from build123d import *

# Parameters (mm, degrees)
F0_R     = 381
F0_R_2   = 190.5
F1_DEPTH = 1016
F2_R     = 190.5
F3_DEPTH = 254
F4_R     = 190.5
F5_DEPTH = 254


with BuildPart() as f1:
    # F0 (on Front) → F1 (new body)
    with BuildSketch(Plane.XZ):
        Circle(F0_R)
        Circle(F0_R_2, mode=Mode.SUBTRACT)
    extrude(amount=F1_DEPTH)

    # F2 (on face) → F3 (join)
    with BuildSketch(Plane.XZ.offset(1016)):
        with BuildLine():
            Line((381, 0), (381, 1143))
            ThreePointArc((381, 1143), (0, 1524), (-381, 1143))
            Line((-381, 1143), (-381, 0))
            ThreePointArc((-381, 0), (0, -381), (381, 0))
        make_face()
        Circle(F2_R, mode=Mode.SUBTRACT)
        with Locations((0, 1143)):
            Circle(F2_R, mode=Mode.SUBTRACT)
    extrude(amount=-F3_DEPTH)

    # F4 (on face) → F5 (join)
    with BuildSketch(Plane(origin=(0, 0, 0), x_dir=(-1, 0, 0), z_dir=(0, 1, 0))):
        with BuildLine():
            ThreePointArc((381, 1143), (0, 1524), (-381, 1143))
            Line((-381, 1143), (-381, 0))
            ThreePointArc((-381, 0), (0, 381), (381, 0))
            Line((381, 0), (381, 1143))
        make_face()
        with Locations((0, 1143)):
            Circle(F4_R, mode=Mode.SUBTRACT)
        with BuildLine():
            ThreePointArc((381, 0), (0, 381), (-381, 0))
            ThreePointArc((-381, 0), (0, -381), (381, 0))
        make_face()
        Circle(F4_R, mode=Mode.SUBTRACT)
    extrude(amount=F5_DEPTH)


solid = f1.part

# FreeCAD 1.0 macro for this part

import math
import FreeCAD as App
import Part
import Sketcher
from FreeCAD import Vector
Q = App.Units.Quantity

doc = App.newDocument("Part")
body = doc.addObject("PartDesign::Body", "Body")

# Sketch on XZ plane
sketch1 = doc.addObject("Sketcher::SketchObject", "Sketch")
body.addObject(sketch1)
sketch1.AttachmentSupport = (doc.XZ_Plane, [""])
sketch1.MapMode = "FlatFace"
sketch1.addGeometry(Part.Circle(Vector(0, 0, 0), Vector(0, 0, 1), 381), False)
sketch1.addGeometry(Part.Circle(Vector(0, 0, 0), Vector(0, 0, 1), 190), False)
sketch1.addConstraint(Sketcher.Constraint("Coincident", 0, 3, -1, 1))
sketch1.addConstraint(Sketcher.Constraint("Coincident", 1, 3, -1, 1))
sketch1.addConstraint(Sketcher.Constraint("Diameter", 0, Q("30 in")))
sketch1.addConstraint(Sketcher.Constraint("Diameter", 1, Q("15 in")))
pad1 = doc.addObject("PartDesign::Pad", "Pad")
body.addObject(pad1)
pad1.Profile = sketch1
pad1.Length = Q("40 in")

# Sketch on XZ plane
sketch2 = doc.addObject("Sketcher::SketchObject", "Sketch001")
body.addObject(sketch2)
sketch2.AttachmentSupport = (doc.XZ_Plane, [""])
sketch2.MapMode = "FlatFace"
sketch2.AttachmentOffset = App.Placement(Vector(0, 0, 40 * 25.4), App.Rotation())
sketch2.addGeometry(Part.LineSegment(Vector(381, 0, 0), Vector(381, 1143, 0)), False)
sketch2.addGeometry(Part.ArcOfCircle(Part.Circle(Vector(0, 1143, 0), Vector(0, 0, 1), 381), math.radians(0), math.radians(180)), False)
sketch2.addGeometry(Part.LineSegment(Vector(-381, 1143, 0), Vector(-381, 0, 0)), False)
sketch2.addGeometry(Part.ArcOfCircle(Part.Circle(Vector(0, 0, 0), Vector(0, 0, 1), 381), math.radians(180), math.radians(360)), False)
sketch2.addGeometry(Part.Circle(Vector(0, 0, 0), Vector(0, 0, 1), 190), False)
sketch2.addGeometry(Part.Circle(Vector(0, 1143, 0), Vector(0, 0, 1), 190), False)
sketch2.addConstraint(Sketcher.Constraint("Tangent", 0, 2, 1, 1))
sketch2.addConstraint(Sketcher.Constraint("Tangent", 1, 2, 2, 1))
sketch2.addConstraint(Sketcher.Constraint("Tangent", 2, 2, 3, 1))
sketch2.addConstraint(Sketcher.Constraint("Tangent", 3, 2, 0, 1))
sketch2.addConstraint(Sketcher.Constraint("Vertical", 0))
sketch2.addConstraint(Sketcher.Constraint("Vertical", 2))
sketch2.addConstraint(Sketcher.Constraint("Coincident", 3, 3, -1, 1))
sketch2.addConstraint(Sketcher.Constraint("Coincident", 4, 3, -1, 1))
sketch2.addConstraint(Sketcher.Constraint("Coincident", 5, 3, 1, 3))
sketch2.addConstraint(Sketcher.Constraint("Equal", 4, 5))
sketch2.addConstraint(Sketcher.Constraint("Diameter", 4, Q("15 in")))
sketch2.addConstraint(Sketcher.Constraint("Radius", 1, Q("15 in")))
sketch2.addConstraint(Sketcher.Constraint("DistanceY", 0, 1, 0, 2, Q("45 in")))
pad2 = doc.addObject("PartDesign::Pad", "Pad001")
body.addObject(pad2)
pad2.Profile = sketch2
pad2.Length = Q("10 in")
pad2.Reversed = True

# Sketch on XZ plane
sketch3 = doc.addObject("Sketcher::SketchObject", "Sketch002")
body.addObject(sketch3)
sketch3.AttachmentSupport = (doc.XZ_Plane, [""])
sketch3.MapMode = "FlatFace"
sketch3.addGeometry(Part.ArcOfCircle(Part.Circle(Vector(0, 1143, 0), Vector(0, 0, 1), 381), math.radians(0), math.radians(180)), False)
sketch3.addGeometry(Part.LineSegment(Vector(381, 1143, 0), Vector(381, 0, 0)), False)
sketch3.addGeometry(Part.ArcOfCircle(Part.Circle(Vector(0, 0, 0), Vector(0, 0, 1), 381), math.radians(180), math.radians(360)), False)
sketch3.addGeometry(Part.LineSegment(Vector(-381, 0, 0), Vector(-381, 1143, 0)), False)
sketch3.addGeometry(Part.Circle(Vector(0, 0, 0), Vector(0, 0, 1), 190), False)
sketch3.addGeometry(Part.Circle(Vector(0, 1143, 0), Vector(0, 0, 1), 190), False)
sketch3.addConstraint(Sketcher.Constraint("Tangent", 0, 1, 1, 1))
sketch3.addConstraint(Sketcher.Constraint("Tangent", 1, 2, 2, 2))
sketch3.addConstraint(Sketcher.Constraint("Tangent", 2, 1, 3, 1))
sketch3.addConstraint(Sketcher.Constraint("Tangent", 3, 2, 0, 2))
sketch3.addConstraint(Sketcher.Constraint("Vertical", 1))
sketch3.addConstraint(Sketcher.Constraint("Vertical", 3))
sketch3.addConstraint(Sketcher.Constraint("Coincident", 2, 3, -1, 1))
sketch3.addConstraint(Sketcher.Constraint("Coincident", 4, 3, -1, 1))
sketch3.addConstraint(Sketcher.Constraint("Coincident", 5, 3, 0, 3))
sketch3.addConstraint(Sketcher.Constraint("Equal", 4, 5))
sketch3.addConstraint(Sketcher.Constraint("Diameter", 4, Q("15 in")))
sketch3.addConstraint(Sketcher.Constraint("Radius", 0, Q("15 in")))
sketch3.addConstraint(Sketcher.Constraint("DistanceY", 1, 2, 1, 1, Q("45 in")))
pad3 = doc.addObject("PartDesign::Pad", "Pad002")
body.addObject(pad3)
pad3.Profile = sketch3
pad3.Length = Q("10 in")
pad3.Reversed = True

doc.recompute()
